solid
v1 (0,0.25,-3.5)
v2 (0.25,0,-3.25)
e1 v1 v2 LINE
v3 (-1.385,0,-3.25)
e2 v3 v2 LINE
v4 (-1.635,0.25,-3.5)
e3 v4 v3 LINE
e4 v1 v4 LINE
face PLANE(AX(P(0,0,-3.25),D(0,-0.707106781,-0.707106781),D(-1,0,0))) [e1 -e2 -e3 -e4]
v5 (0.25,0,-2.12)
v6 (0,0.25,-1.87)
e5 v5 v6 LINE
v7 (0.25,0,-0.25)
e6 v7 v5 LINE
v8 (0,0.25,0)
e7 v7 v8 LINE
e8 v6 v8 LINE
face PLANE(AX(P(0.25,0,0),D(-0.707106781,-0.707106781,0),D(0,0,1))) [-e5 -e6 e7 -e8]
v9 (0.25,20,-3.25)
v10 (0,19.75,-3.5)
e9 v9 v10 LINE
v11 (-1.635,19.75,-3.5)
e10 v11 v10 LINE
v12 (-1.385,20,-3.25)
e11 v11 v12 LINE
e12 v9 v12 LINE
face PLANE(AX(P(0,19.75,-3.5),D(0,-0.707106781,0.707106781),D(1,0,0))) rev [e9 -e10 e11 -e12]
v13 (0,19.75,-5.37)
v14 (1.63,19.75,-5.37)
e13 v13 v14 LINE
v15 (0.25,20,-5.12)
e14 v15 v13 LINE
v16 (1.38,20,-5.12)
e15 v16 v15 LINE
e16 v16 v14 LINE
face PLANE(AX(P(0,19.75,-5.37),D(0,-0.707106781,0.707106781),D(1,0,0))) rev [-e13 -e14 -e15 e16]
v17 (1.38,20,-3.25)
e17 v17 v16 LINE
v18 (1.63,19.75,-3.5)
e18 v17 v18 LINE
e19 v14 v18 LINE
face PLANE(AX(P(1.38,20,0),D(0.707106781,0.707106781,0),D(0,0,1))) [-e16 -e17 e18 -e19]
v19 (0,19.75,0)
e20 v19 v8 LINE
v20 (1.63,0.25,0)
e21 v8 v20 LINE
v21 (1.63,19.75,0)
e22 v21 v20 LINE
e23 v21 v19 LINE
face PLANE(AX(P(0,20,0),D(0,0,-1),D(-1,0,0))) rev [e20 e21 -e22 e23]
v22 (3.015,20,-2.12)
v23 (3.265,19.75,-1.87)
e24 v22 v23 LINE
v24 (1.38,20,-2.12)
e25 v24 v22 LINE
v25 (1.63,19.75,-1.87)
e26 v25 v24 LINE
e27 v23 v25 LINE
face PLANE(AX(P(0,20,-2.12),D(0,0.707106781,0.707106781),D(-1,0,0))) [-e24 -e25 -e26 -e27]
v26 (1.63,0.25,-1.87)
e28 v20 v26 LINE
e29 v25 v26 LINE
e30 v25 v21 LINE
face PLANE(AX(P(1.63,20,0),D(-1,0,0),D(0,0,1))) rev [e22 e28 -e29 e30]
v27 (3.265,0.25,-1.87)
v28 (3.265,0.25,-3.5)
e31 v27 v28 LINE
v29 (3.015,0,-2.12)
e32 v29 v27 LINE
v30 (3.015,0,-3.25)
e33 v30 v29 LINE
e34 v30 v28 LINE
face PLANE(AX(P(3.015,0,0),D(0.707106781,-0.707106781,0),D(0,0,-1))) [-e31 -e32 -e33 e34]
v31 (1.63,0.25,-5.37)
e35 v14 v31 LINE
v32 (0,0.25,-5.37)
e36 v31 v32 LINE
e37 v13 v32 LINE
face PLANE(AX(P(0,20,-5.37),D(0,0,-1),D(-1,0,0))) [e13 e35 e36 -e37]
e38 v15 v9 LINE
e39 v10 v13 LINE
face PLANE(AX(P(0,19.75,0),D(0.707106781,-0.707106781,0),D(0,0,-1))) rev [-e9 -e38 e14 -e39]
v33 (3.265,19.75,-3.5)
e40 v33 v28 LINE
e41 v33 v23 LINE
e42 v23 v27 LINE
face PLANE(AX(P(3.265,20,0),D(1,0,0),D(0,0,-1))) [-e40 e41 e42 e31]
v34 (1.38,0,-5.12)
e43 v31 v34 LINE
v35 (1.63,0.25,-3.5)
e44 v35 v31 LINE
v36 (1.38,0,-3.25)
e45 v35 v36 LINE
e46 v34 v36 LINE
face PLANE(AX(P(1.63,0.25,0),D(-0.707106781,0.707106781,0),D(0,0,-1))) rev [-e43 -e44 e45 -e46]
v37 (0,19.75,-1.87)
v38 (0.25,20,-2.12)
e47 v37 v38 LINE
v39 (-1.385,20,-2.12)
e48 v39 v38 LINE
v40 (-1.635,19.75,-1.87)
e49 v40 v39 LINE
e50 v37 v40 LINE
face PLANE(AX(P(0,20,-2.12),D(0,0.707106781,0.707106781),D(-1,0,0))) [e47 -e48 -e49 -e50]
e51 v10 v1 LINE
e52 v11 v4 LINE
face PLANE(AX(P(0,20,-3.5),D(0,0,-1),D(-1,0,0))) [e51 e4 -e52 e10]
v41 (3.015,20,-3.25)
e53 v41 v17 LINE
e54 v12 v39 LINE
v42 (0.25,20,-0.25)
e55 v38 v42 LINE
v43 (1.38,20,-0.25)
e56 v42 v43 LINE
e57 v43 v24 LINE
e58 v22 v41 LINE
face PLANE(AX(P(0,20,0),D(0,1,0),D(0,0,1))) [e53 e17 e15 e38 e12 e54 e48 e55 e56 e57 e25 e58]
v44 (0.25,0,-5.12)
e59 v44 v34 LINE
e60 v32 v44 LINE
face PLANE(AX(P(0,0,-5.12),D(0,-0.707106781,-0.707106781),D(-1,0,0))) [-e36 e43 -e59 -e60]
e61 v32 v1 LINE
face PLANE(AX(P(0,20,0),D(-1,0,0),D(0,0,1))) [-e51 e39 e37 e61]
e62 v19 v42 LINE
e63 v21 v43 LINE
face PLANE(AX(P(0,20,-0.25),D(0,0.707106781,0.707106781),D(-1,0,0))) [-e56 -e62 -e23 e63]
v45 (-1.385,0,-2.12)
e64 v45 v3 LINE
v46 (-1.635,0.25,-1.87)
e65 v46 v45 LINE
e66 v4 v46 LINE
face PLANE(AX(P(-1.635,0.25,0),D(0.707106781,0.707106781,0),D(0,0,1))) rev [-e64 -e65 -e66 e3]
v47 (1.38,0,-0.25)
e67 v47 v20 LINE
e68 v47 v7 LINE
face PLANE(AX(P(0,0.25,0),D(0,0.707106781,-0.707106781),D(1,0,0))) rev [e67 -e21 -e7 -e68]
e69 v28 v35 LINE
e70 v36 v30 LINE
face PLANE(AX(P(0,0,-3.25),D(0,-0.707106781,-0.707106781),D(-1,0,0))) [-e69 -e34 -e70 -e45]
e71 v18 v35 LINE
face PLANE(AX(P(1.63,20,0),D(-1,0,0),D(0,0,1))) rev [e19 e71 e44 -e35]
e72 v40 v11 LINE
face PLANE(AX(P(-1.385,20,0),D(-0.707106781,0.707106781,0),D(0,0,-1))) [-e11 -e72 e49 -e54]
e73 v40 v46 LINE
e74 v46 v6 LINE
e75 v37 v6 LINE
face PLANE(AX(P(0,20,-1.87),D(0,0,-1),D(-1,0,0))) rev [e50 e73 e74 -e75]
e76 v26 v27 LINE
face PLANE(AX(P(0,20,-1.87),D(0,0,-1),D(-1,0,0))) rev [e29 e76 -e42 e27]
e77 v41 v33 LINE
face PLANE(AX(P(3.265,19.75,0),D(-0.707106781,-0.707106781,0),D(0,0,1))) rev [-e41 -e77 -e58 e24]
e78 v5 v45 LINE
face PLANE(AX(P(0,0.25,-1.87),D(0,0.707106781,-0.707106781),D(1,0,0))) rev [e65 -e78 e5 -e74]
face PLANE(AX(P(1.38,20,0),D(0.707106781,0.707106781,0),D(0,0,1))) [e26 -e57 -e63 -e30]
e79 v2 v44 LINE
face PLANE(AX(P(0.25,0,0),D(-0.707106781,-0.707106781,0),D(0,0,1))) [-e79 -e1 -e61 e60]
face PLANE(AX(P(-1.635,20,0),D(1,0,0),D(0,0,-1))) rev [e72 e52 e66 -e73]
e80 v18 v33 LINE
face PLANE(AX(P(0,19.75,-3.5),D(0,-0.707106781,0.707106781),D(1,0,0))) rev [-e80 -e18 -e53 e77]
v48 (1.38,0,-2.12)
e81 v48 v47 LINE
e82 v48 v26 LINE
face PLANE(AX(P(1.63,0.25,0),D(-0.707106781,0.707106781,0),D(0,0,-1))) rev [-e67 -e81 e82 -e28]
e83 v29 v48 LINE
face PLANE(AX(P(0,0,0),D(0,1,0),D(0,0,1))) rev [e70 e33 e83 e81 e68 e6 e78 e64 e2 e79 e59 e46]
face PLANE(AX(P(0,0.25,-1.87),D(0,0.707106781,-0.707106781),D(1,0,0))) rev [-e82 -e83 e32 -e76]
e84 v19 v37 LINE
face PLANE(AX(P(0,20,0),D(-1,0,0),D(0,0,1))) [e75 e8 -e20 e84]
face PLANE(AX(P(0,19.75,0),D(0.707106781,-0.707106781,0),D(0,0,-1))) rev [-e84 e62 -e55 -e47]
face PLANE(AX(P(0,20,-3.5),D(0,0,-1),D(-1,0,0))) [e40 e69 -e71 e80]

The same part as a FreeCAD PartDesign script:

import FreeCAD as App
import Part
import Sketcher

V = App.Vector
Q = App.Units.Quantity


def edges_at(feature, points):
    """Names of the edges that pass closest to the given points."""
    edges = feature.Shape.Edges
    near = lambda p: min(range(len(edges)), key=lambda i: edges[i].distToShape(Part.Vertex(*p))[0])
    return sorted({f"Edge{near(p) + 1}" for p in points})


def add_polygon(sketch, points):
    """Adds a closed chain of lines whose ends are joined by coincident constraints."""
    first, n = sketch.GeometryCount, len(points)
    for a, b in zip(points, points[1:] + points[:1]):
        sketch.addGeometry(Part.LineSegment(App.Vector(*a, 0), App.Vector(*b, 0)), False)
    for i in range(n):
        sketch.addConstraint(Sketcher.Constraint("Coincident", first + i, 2, first + (i + 1) % n, 1))

doc = App.newDocument("Part")
body = doc.addObject("PartDesign::Body", "Body")

# Sketch on XZ plane
sketch1 = body.newObject("Sketcher::SketchObject", "Sketch")
sketch1.AttachmentSupport = (doc.getObject("XZ_Plane"), [""])
sketch1.MapMode = "FlatFace"
add_polygon(sketch1, [(-1.635, -3.5), (-1.635, -1.87), (0, -1.87), (0, 0), (1.63, 0), (1.63, -1.87), (3.265, -1.87), (3.265, -3.5), (1.63, -3.5), (1.63, -5.37), (0, -5.37), (0, -3.5)])  # lines 0-11
sketch1.addConstraint([
    Sketcher.Constraint("Vertical", 0),
    Sketcher.Constraint("Horizontal", 1),
    Sketcher.Constraint("Vertical", 2),
    Sketcher.Constraint("Horizontal", 3),
    Sketcher.Constraint("Vertical", 4),
    Sketcher.Constraint("Horizontal", 5),
    Sketcher.Constraint("Vertical", 6),
    Sketcher.Constraint("Horizontal", 7),
    Sketcher.Constraint("Vertical", 8),
    Sketcher.Constraint("Horizontal", 9),
    Sketcher.Constraint("Vertical", 10),
    Sketcher.Constraint("Horizontal", 11),
    Sketcher.Constraint("Coincident", 2, 2, -1, 1),
    Sketcher.Constraint("PointOnObject", 9, 2, -2),
    Sketcher.Constraint("Horizontal", 1, 2, 4, 2),
    Sketcher.Constraint("Horizontal", 7, 2, 10, 2),
    Sketcher.Constraint("Vertical", 4, 2, 7, 2),
    Sketcher.Constraint("Equal", 1, 5),
    Sketcher.Constraint("Equal", 9, 0),
    Sketcher.Constraint("Equal", 4, 8),
    Sketcher.Constraint("DistanceX", 3, 1, 3, 2, Q("1.63 mm")),
    Sketcher.Constraint("DistanceY", 2, 1, 2, 2, Q("1.87 mm")),
    Sketcher.Constraint("DistanceX", 0, 2, 5, 2, Q("4.9 mm")),
])
pad1 = body.newObject("PartDesign::Pad", "Pad")
pad1.Profile = sketch1
pad1.Length = 20
pad1.Reversed = True
doc.recompute()

chamfer = body.newObject("PartDesign::Chamfer", "Chamfer")
chamfer.Base = (pad1, edges_at(pad1, [
    (-0.818, 20, -1.87),
    (0, 20, -0.935),
    (0.815, 20, 0),
    (1.63, 20, -0.935),
    (2.447, 20, -1.87),
    (3.265, 20, -2.685),
    (2.447, 20, -3.5),
    (1.63, 20, -4.435),
    (-1.635, 20, -2.685),
    (0.815, 20, -5.37),
    (0, 20, -4.435),
    (-0.818, 20, -3.5),
]))
chamfer.Size = 0.25
doc.recompute()

chamfer2 = body.newObject("PartDesign::Chamfer", "Chamfer001")
chamfer2.Base = (chamfer, edges_at(chamfer, [
    (-0.818, 0, -3.5),
    (0, 0, -4.435),
    (0.815, 0, -5.37),
    (1.63, 0, -4.435),
    (2.447, 0, -3.5),
    (3.265, 0, -2.685),
    (2.447, 0, -1.87),
    (1.63, 0, -0.935),
    (0.815, 0, 0),
    (0, 0, -0.935),
    (-0.818, 0, -1.87),
    (-1.635, 0, -2.685),
]))
chamfer2.Size = 0.25

doc.recompute()
